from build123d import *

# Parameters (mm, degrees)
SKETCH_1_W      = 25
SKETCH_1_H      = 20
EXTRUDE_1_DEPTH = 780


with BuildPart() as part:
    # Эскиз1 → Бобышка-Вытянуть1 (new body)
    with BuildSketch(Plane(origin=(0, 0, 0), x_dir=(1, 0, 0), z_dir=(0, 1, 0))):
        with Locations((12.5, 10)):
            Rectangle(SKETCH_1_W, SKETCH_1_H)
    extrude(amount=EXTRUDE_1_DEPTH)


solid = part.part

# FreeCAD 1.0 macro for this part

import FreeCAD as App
import Part
import Sketcher
from FreeCAD import Vector
Q = App.Units.Quantity

doc = App.newDocument("Part")
body = doc.addObject("PartDesign::Body", "Body")

# Sketch on XZ plane
sketch1 = body.newObject("Sketcher::SketchObject", "Sketch")
sketch1.AttachmentSupport = (doc.getObject("XZ_Plane"), [""])
sketch1.MapMode = "FlatFace"
sketch1.addGeometry(Part.LineSegment(Vector(0, -20, 0), Vector(0, 0, 0)), False)
sketch1.addGeometry(Part.LineSegment(Vector(0, 0, 0), Vector(25, 0, 0)), False)
sketch1.addGeometry(Part.LineSegment(Vector(25, 0, 0), Vector(25, -20, 0)), False)
sketch1.addGeometry(Part.LineSegment(Vector(25, -20, 0), Vector(0, -20, 0)), False)
sketch1.addConstraint(Sketcher.Constraint("Coincident", 0, 2, 1, 1))
sketch1.addConstraint(Sketcher.Constraint("Coincident", 1, 2, 2, 1))
sketch1.addConstraint(Sketcher.Constraint("Coincident", 2, 2, 3, 1))
sketch1.addConstraint(Sketcher.Constraint("Coincident", 3, 2, 0, 1))
sketch1.addConstraint(Sketcher.Constraint("Vertical", 0))
sketch1.addConstraint(Sketcher.Constraint("Horizontal", 1))
sketch1.addConstraint(Sketcher.Constraint("Vertical", 2))
sketch1.addConstraint(Sketcher.Constraint("Horizontal", 3))
sketch1.addConstraint(Sketcher.Constraint("Coincident", 0, 2, -1, 1))
sketch1.addConstraint(Sketcher.Constraint("DistanceX", 1, 1, 1, 2, Q("25 mm")))
sketch1.addConstraint(Sketcher.Constraint("DistanceY", 0, 1, 0, 2, Q("20 mm")))
pad1 = body.newObject("PartDesign::Pad", "Pad")
pad1.Profile = sketch1
pad1.Length = 780
pad1.Reversed = True

doc.recompute()
